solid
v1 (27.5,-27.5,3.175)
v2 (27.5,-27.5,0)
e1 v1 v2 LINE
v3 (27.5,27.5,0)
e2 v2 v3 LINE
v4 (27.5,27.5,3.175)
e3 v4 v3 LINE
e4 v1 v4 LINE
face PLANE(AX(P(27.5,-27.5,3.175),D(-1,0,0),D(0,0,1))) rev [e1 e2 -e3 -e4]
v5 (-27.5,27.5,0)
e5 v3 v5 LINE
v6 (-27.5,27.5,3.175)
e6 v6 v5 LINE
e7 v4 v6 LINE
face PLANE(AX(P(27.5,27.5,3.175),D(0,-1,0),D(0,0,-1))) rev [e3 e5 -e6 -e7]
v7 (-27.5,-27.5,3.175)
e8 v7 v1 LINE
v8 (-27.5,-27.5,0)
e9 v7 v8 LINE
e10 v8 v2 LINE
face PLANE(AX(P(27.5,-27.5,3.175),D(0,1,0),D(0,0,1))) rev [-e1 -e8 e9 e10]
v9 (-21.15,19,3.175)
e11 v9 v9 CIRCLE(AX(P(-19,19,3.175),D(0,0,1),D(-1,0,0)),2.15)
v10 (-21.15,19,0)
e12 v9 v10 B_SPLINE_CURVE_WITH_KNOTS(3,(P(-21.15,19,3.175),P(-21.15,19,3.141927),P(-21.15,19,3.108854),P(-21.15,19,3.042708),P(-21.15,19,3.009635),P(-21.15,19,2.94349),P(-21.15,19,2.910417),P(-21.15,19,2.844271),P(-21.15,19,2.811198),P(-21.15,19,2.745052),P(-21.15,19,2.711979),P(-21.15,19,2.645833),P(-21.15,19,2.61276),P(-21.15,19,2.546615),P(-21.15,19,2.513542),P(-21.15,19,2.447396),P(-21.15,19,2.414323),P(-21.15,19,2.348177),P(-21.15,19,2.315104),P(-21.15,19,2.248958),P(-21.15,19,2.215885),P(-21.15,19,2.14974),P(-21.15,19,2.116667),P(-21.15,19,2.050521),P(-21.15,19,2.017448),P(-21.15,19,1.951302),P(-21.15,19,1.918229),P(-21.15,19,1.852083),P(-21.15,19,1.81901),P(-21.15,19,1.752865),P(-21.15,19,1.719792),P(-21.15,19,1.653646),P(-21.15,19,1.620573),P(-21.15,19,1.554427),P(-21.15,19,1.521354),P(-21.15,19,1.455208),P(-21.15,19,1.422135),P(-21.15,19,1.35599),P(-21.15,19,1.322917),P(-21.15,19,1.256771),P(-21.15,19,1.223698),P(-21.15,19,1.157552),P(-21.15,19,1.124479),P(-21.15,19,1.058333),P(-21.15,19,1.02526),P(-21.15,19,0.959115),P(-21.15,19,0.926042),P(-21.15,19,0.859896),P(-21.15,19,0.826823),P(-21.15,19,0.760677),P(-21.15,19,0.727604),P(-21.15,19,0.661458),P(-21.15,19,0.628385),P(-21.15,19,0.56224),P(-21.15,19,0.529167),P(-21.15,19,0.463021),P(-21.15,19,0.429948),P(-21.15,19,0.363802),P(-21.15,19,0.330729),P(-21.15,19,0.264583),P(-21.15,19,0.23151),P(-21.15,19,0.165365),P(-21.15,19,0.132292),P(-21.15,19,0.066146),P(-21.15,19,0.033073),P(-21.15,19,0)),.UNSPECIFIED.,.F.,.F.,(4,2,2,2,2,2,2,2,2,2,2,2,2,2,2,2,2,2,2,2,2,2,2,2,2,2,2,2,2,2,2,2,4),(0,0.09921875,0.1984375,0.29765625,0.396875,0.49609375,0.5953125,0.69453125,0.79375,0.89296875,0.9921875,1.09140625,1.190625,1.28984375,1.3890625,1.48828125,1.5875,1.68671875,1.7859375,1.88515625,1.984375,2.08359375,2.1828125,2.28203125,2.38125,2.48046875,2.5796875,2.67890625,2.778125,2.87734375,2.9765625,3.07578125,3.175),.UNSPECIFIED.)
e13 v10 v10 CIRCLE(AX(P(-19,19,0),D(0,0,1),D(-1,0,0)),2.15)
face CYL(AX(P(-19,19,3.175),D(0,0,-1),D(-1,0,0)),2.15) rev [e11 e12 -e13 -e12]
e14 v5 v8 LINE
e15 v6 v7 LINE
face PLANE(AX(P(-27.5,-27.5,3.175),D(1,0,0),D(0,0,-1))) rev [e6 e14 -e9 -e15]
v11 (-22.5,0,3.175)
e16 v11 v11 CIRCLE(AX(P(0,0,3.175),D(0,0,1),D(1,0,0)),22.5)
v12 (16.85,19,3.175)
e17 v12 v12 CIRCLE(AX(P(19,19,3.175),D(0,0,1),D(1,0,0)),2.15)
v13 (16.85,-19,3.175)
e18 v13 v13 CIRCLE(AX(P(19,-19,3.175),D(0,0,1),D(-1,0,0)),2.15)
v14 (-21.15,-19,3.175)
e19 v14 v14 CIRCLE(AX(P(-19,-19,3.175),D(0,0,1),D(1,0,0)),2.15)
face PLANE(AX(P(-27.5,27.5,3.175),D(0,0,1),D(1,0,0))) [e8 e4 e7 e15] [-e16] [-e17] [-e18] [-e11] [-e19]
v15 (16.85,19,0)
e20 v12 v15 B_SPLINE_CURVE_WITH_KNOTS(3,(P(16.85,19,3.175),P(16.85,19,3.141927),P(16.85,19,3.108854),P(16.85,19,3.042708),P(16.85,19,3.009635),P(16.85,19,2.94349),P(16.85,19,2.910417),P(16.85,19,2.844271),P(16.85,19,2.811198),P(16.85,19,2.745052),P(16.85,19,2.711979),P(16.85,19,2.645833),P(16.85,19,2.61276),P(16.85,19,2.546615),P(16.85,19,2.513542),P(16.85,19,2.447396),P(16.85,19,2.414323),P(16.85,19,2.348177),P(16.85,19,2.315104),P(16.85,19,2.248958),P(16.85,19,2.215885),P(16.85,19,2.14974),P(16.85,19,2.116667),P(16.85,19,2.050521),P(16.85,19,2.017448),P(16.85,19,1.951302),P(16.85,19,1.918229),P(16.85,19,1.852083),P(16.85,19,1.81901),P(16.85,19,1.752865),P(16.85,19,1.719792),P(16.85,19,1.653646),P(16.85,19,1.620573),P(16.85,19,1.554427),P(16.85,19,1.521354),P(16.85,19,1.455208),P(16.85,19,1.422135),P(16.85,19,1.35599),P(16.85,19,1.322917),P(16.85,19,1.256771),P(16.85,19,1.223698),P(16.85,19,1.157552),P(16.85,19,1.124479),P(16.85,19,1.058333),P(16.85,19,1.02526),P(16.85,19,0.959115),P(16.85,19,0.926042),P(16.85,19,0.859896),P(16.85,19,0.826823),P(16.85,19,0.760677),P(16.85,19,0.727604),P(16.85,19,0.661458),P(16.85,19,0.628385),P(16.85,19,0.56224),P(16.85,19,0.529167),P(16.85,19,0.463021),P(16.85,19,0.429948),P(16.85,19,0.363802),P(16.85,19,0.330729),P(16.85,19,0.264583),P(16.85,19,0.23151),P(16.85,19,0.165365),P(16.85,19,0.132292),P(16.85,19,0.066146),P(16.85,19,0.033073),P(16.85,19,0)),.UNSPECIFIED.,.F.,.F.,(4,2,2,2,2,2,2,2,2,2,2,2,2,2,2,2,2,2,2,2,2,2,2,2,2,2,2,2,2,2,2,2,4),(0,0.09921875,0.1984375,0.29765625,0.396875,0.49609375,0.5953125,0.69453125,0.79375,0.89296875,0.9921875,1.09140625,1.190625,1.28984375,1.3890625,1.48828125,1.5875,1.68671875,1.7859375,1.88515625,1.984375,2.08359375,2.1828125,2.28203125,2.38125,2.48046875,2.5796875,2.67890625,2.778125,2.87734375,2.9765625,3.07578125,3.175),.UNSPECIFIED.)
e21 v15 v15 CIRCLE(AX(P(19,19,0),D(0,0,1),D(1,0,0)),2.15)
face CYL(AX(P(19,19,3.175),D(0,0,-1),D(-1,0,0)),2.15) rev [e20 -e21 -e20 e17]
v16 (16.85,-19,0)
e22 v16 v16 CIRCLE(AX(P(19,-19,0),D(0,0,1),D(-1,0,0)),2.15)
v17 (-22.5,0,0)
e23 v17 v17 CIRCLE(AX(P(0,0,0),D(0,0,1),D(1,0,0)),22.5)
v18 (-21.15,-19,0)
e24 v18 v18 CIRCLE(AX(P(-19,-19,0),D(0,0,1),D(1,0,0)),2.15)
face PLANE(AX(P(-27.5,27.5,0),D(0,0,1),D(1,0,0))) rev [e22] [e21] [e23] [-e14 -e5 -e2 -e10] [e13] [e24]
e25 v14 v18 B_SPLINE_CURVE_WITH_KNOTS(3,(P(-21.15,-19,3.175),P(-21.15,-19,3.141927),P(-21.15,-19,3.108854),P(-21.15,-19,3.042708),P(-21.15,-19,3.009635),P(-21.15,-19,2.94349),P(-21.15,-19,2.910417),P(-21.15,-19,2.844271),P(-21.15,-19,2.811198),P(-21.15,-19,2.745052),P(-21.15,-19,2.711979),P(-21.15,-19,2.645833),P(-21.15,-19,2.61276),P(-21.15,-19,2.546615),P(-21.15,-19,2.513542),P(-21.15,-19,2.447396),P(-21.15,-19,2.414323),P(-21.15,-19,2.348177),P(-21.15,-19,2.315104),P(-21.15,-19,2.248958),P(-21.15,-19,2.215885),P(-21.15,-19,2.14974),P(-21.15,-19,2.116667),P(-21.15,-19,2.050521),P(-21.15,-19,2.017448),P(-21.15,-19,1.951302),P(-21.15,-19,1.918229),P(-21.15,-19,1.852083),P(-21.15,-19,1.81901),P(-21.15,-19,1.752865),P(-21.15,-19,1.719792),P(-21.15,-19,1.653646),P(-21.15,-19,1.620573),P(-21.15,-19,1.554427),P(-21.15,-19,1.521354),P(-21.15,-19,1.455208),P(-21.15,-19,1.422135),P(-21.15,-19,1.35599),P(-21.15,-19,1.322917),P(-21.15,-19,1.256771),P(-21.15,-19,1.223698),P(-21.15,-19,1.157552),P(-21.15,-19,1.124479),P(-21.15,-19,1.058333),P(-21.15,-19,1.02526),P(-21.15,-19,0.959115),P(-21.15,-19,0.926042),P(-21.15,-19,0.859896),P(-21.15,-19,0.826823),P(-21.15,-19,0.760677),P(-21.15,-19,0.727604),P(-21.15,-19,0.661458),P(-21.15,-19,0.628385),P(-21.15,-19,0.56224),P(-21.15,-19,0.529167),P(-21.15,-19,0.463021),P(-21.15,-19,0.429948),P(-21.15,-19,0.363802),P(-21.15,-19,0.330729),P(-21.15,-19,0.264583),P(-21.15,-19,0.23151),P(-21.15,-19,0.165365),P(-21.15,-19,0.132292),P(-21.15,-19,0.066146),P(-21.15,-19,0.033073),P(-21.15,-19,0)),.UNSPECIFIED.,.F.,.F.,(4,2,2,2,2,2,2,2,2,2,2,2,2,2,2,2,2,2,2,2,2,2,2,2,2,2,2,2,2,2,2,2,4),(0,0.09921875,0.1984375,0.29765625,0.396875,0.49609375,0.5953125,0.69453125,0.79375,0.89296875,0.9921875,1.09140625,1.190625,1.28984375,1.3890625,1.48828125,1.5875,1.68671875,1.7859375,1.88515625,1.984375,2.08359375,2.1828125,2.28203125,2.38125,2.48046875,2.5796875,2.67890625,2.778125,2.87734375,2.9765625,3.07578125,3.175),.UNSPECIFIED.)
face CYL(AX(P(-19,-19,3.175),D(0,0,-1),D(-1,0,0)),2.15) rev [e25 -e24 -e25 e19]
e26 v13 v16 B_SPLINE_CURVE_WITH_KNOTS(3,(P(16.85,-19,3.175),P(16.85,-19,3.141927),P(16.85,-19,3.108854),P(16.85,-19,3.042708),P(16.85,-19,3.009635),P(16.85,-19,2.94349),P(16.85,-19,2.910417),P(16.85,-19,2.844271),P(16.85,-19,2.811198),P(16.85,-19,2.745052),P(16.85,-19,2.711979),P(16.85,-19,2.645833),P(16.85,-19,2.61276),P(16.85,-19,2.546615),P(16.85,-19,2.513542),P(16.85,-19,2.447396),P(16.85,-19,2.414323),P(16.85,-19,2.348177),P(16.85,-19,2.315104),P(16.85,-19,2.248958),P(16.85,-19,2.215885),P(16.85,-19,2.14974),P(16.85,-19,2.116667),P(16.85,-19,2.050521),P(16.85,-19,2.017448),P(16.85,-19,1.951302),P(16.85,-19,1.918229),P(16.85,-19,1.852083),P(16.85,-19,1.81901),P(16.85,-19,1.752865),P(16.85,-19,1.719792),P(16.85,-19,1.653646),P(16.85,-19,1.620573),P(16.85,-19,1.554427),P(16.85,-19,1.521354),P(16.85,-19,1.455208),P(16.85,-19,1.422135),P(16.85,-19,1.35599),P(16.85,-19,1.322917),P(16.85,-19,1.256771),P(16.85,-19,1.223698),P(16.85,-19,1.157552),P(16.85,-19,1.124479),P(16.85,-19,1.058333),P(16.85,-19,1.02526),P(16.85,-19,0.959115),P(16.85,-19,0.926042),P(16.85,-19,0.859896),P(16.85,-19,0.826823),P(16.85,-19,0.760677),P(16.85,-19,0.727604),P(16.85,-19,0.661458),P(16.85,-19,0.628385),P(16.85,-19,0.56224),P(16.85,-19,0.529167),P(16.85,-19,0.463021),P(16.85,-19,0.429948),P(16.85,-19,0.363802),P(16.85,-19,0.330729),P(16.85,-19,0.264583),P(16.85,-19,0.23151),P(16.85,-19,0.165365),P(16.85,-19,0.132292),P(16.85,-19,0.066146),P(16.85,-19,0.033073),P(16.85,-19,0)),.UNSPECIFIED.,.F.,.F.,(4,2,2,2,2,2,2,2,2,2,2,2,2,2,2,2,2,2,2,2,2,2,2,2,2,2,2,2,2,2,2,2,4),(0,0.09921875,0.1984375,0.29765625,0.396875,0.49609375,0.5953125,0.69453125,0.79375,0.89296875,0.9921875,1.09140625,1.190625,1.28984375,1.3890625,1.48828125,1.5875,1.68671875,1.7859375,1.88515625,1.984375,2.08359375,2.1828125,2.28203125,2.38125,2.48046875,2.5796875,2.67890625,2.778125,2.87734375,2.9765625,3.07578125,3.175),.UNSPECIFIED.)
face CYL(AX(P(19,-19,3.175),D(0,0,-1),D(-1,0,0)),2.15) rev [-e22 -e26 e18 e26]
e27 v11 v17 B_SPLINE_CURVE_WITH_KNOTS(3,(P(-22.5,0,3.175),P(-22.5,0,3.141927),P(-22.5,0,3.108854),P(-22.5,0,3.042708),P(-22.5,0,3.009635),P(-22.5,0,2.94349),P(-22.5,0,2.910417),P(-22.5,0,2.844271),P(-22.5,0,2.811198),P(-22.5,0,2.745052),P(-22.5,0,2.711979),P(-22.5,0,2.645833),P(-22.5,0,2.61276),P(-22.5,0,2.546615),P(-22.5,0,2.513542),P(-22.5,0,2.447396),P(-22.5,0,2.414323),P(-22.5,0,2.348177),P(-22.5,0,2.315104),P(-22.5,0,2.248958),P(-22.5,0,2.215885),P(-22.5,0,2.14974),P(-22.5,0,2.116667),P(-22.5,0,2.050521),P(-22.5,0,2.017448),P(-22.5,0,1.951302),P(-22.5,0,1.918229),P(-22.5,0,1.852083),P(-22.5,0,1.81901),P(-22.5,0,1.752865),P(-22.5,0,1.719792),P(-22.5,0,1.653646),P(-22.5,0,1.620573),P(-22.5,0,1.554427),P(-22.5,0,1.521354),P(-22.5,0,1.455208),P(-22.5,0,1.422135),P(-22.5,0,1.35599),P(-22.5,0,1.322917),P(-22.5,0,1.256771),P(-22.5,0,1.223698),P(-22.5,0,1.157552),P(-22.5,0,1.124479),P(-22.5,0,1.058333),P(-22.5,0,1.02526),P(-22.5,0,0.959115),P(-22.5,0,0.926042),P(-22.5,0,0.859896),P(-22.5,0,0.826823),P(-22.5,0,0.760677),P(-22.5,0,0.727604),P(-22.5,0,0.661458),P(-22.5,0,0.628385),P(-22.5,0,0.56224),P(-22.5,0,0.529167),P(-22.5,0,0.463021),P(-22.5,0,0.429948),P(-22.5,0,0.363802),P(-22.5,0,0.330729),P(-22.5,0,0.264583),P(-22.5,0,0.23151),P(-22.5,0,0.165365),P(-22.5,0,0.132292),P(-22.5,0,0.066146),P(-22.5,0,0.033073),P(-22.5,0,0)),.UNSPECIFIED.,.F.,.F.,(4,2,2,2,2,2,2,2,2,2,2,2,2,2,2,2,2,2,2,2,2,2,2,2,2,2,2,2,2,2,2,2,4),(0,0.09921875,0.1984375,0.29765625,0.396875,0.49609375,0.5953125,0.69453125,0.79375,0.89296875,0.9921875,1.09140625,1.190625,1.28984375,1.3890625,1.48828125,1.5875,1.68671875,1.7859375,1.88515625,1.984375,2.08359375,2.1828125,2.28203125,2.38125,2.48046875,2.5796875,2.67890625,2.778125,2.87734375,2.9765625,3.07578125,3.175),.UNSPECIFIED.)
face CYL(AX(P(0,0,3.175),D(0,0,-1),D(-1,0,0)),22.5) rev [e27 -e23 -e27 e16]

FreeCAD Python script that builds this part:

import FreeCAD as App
import Part
import Sketcher
from FreeCAD import Vector
Q = App.Units.Quantity

doc = App.newDocument("Part")
params = doc.addObject("Spreadsheet::Sheet", "Params")
for row, (alias, value) in enumerate([
    ("sketch1_diameter", "45 mm"),
    ("sketch1_diameter2", "4.3 mm"),
    ("sketch1_width", "55 mm"),
    ("pad1_length", "3.175 mm"),
], start=1):
    params.set(f"A{row}", alias)
    params.set(f"B{row}", "=" + value)
    params.setAlias(f"B{row}", alias)

body = doc.addObject("PartDesign::Body", "Body")

# Sketch on XY plane
sketch1 = body.newObject("Sketcher::SketchObject", "Sketch")
sketch1.AttachmentSupport = (doc.getObject("XY_Plane"), [""])
sketch1.MapMode = "FlatFace"
sketch1.addGeometry(Part.LineSegment(Vector(-27.5, 27.5, 0), Vector(-27.5, -27.5, 0)), False)
sketch1.addGeometry(Part.LineSegment(Vector(-27.5, -27.5, 0), Vector(27.5, -27.5, 0)), False)
sketch1.addGeometry(Part.LineSegment(Vector(27.5, -27.5, 0), Vector(27.5, 27.5, 0)), False)
sketch1.addGeometry(Part.LineSegment(Vector(27.5, 27.5, 0), Vector(-27.5, 27.5, 0)), False)
sketch1.addGeometry(Part.Circle(Vector(-19, -19, 0), Vector(0, 0, 1), 2.1), False)
sketch1.addGeometry(Part.Circle(Vector(19, -19, 0), Vector(0, 0, 1), 2.1), False)
sketch1.addGeometry(Part.Circle(Vector(-19, 19, 0), Vector(0, 0, 1), 2.1), False)
sketch1.addGeometry(Part.Circle(Vector(0, 0, 0), Vector(0, 0, 1), 22.5), False)
sketch1.addGeometry(Part.Circle(Vector(19, 19, 0), Vector(0, 0, 1), 2.1), False)
sketch1.addConstraint(Sketcher.Constraint("Coincident", 0, 2, 1, 1))
sketch1.addConstraint(Sketcher.Constraint("Coincident", 1, 2, 2, 1))
sketch1.addConstraint(Sketcher.Constraint("Coincident", 2, 2, 3, 1))
sketch1.addConstraint(Sketcher.Constraint("Coincident", 3, 2, 0, 1))
sketch1.addConstraint(Sketcher.Constraint("Vertical", 0))
sketch1.addConstraint(Sketcher.Constraint("Horizontal", 1))
sketch1.addConstraint(Sketcher.Constraint("Vertical", 2))
sketch1.addConstraint(Sketcher.Constraint("Horizontal", 3))
sketch1.addConstraint(Sketcher.Constraint("Coincident", 7, 3, -1, 1))
sketch1.addConstraint(Sketcher.Constraint("Equal", 4, 5))
sketch1.addConstraint(Sketcher.Constraint("Equal", 5, 6))
sketch1.addConstraint(Sketcher.Constraint("Equal", 6, 8))
sketch1.addConstraint(Sketcher.Constraint("Symmetric", 5, 3, 6, 3, -1, 1))
sketch1.addConstraint(Sketcher.Constraint("Symmetric", 4, 3, 8, 3, -1, 1))
sketch1.addConstraint(Sketcher.Constraint("Symmetric", 0, 2, 2, 2, -1, 1))
sketch1.addConstraint(Sketcher.Constraint("Symmetric", 4, 3, 5, 3, -2))
sketch1.addConstraint(Sketcher.Constraint("Equal", 3, 0))
sketch1.addConstraint(Sketcher.Constraint("Diameter", 7, Q("45 mm")))
sketch1.addConstraint(Sketcher.Constraint("Diameter", 4, Q("4.3 mm")))
sketch1.addConstraint(Sketcher.Constraint("DistanceX", 1, 1, 1, 2, Q("55 mm")))
sketch1.addConstraint(Sketcher.Constraint("DistanceX", 4, 3, -1, 1, Q("19 mm")))
sketch1.addConstraint(Sketcher.Constraint("DistanceY", 4, 3, -1, 1, Q("19 mm")))
sketch1.setExpression("Constraints[17]", "Params.sketch1_diameter")
sketch1.setExpression("Constraints[18]", "Params.sketch1_diameter2")
sketch1.setExpression("Constraints[19]", "Params.sketch1_width")
pad1 = body.newObject("PartDesign::Pad", "Pad")
pad1.Profile = sketch1
pad1.setExpression("Length", "Params.pad1_length")

doc.recompute()
